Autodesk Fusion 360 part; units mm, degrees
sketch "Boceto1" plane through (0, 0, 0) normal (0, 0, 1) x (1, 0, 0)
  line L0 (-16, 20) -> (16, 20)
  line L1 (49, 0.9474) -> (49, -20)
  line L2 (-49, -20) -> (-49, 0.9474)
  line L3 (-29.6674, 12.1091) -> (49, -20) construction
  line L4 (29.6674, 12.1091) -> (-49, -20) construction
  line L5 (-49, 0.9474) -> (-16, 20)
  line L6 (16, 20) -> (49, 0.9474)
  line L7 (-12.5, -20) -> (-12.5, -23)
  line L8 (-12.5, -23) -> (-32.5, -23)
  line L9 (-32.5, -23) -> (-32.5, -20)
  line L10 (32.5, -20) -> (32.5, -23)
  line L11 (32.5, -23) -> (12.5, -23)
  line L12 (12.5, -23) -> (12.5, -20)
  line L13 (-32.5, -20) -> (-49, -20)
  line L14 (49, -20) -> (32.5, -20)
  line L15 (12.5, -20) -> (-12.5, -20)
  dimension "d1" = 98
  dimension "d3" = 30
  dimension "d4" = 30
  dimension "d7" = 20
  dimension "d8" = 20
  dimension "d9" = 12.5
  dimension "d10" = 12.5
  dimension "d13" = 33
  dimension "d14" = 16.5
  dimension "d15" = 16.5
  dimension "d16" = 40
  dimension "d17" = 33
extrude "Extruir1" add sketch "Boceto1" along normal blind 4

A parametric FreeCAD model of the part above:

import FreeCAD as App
import Part
import Sketcher
Q = App.Units.Quantity


def add_polygon(sketch, points):
    """Adds a closed chain of lines whose ends are joined by coincident constraints."""
    first, n = sketch.GeometryCount, len(points)
    for a, b in zip(points, points[1:] + points[:1]):
        sketch.addGeometry(Part.LineSegment(App.Vector(*a, 0), App.Vector(*b, 0)), False)
    for i in range(n):
        sketch.addConstraint(Sketcher.Constraint("Coincident", first + i, 2, first + (i + 1) % n, 1))

doc = App.newDocument("Part")
body = doc.addObject("PartDesign::Body", "Body")

# Sketch on XY plane
sketch1 = doc.addObject("Sketcher::SketchObject", "Sketch")
body.addObject(sketch1)
sketch1.AttachmentSupport = (doc.XY_Plane, [""])
sketch1.MapMode = "FlatFace"
add_polygon(sketch1, [(16, 20), (-16, 20), (-49, 0.9), (-49, -20), (-32.5, -20), (-32.5, -23), (-12.5, -23), (-12.5, -20), (12.5, -20), (12.5, -23), (32.5, -23), (32.5, -20), (49, -20), (49, 0.9)])  # lines 0-13
sketch1.addConstraint([
    Sketcher.Constraint("Horizontal", 0),
    Sketcher.Constraint("Vertical", 2),
    Sketcher.Constraint("Horizontal", 3),
    Sketcher.Constraint("Vertical", 4),
    Sketcher.Constraint("Horizontal", 5),
    Sketcher.Constraint("Vertical", 6),
    Sketcher.Constraint("Horizontal", 7),
    Sketcher.Constraint("Vertical", 8),
    Sketcher.Constraint("Horizontal", 9),
    Sketcher.Constraint("Vertical", 10),
    Sketcher.Constraint("Horizontal", 11),
    Sketcher.Constraint("Vertical", 12),
    Sketcher.Constraint("Symmetric", 5, 2, 8, 2, -2),
    Sketcher.Constraint("Symmetric", 3, 2, 10, 2, -2),
    Sketcher.Constraint("Symmetric", 1, 2, 12, 2, -2),
    Sketcher.Constraint("Horizontal", 3, 2, 6, 2),
    Sketcher.Constraint("Equal", 1, 13),
    Sketcher.Constraint("DistanceX", 5, 1, 5, 2, 20.0),
    Sketcher.Constraint("DistanceX", 3, 1, 3, 2, 16.5),
    Sketcher.Constraint("DistanceY", -1, 1, 0, 2, 20.0),
    Sketcher.Constraint("DistanceY", 2, 2, -1, 1, 20.0),
    Sketcher.Constraint("DistanceX", 1, 2, 0, 2, 33.0),
    Sketcher.Constraint("DistanceX", 5, 2, -1, 1, 12.5),
    Sketcher.Constraint("DistanceY", 4, 2, 4, 1, 3.0),
    Sketcher.Constraint("Angle", 1, Q("-150 deg")),
])
pad1 = doc.addObject("PartDesign::Pad", "Pad")
body.addObject(pad1)
pad1.Profile = sketch1
pad1.Length = 4

doc.recompute()
